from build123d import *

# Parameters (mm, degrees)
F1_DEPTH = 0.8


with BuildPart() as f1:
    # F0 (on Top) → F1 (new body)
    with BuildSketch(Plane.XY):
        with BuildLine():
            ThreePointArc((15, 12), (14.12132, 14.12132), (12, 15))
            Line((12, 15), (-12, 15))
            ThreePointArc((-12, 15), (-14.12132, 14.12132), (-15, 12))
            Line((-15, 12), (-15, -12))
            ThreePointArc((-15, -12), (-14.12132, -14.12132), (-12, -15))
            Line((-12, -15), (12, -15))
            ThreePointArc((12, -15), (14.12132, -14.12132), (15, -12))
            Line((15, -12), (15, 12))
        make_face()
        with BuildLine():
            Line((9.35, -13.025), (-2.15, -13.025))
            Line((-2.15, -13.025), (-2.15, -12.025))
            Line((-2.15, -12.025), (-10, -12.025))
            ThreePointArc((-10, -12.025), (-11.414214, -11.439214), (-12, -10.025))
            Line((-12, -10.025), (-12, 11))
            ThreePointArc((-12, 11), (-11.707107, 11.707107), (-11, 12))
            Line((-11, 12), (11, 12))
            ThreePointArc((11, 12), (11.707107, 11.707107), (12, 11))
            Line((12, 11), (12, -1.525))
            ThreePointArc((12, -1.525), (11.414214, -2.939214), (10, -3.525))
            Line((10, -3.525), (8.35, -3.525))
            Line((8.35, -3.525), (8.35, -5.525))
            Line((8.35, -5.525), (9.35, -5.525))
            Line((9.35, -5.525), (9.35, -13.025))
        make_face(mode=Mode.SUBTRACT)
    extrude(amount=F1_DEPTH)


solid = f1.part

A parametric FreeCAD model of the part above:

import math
import FreeCAD as App
import Part
import Sketcher
Q = App.Units.Quantity

doc = App.newDocument("Part")
body = doc.addObject("PartDesign::Body", "Body")

# Sketch on XY plane
sketch1 = body.newObject("Sketcher::SketchObject", "Sketch")
sketch1.AttachmentSupport = (doc.getObject("XY_Plane"), [""])
sketch1.MapMode = "FlatFace"
sketch1.addGeometry([
    Part.ArcOfCircle(Part.Circle(App.Vector(12, 12, 0), App.Vector(0, 0, 1), 3), math.radians(0), math.radians(90)),  # 0
    Part.LineSegment(App.Vector(12, 15, 0), App.Vector(-12, 15, 0)),  # 1
    Part.ArcOfCircle(Part.Circle(App.Vector(-12, 12, 0), App.Vector(0, 0, 1), 3), math.radians(90), math.radians(180)),  # 2
    Part.LineSegment(App.Vector(-15, 12, 0), App.Vector(-15, -12, 0)),  # 3
    Part.ArcOfCircle(Part.Circle(App.Vector(-12, -12, 0), App.Vector(0, 0, 1), 3), math.radians(-180), math.radians(-90)),  # 4
    Part.LineSegment(App.Vector(-12, -15, 0), App.Vector(12, -15, 0)),  # 5
    Part.ArcOfCircle(Part.Circle(App.Vector(12, -12, 0), App.Vector(0, 0, 1), 3), math.radians(-90), math.radians(0)),  # 6
    Part.LineSegment(App.Vector(15, -12, 0), App.Vector(15, 12, 0)),  # 7
    Part.LineSegment(App.Vector(9.3, -5.5, 0), App.Vector(9.3, -13, 0)),  # 8
    Part.LineSegment(App.Vector(9.3, -13, 0), App.Vector(-2.1, -13, 0)),  # 9
    Part.LineSegment(App.Vector(-2.1, -13, 0), App.Vector(-2.1, -12, 0)),  # 10
    Part.LineSegment(App.Vector(-2.1, -12, 0), App.Vector(-10, -12, 0)),  # 11
    Part.ArcOfCircle(Part.Circle(App.Vector(-10, -10, 0), App.Vector(0, 0, 1), 2), math.radians(180), math.radians(270)),  # 12
    Part.LineSegment(App.Vector(-12, -10, 0), App.Vector(-12, 11, 0)),  # 13
    Part.ArcOfCircle(Part.Circle(App.Vector(-11, 11, 0), App.Vector(0, 0, 1), 1), math.radians(90), math.radians(180)),  # 14
    Part.LineSegment(App.Vector(-11, 12, 0), App.Vector(11, 12, 0)),  # 15
    Part.ArcOfCircle(Part.Circle(App.Vector(11, 11, 0), App.Vector(0, 0, 1), 1), math.radians(0), math.radians(90)),  # 16
    Part.LineSegment(App.Vector(12, 11, 0), App.Vector(12, -1.5, 0)),  # 17
    Part.ArcOfCircle(Part.Circle(App.Vector(10, -1.5, 0), App.Vector(0, 0, 1), 2), math.radians(-90), math.radians(0)),  # 18
    Part.LineSegment(App.Vector(10, -3.5, 0), App.Vector(8.3, -3.5, 0)),  # 19
    Part.LineSegment(App.Vector(8.3, -3.5, 0), App.Vector(8.3, -5.5, 0)),  # 20
    Part.LineSegment(App.Vector(8.3, -5.5, 0), App.Vector(9.3, -5.5, 0)),  # 21
], False)
sketch1.addConstraint([
    Sketcher.Constraint("Tangent", 0, 2, 1, 1),
    Sketcher.Constraint("Tangent", 1, 2, 2, 1),
    Sketcher.Constraint("Tangent", 2, 2, 3, 1),
    Sketcher.Constraint("Tangent", 3, 2, 4, 1),
    Sketcher.Constraint("Tangent", 4, 2, 5, 1),
    Sketcher.Constraint("Tangent", 5, 2, 6, 1),
    Sketcher.Constraint("Tangent", 6, 2, 7, 1),
    Sketcher.Constraint("Tangent", 7, 2, 0, 1),
    Sketcher.Constraint("Coincident", 8, 2, 9, 1),
    Sketcher.Constraint("Coincident", 9, 2, 10, 1),
    Sketcher.Constraint("Coincident", 10, 2, 11, 1),
    Sketcher.Constraint("Tangent", 11, 2, 12, 2),
    Sketcher.Constraint("Tangent", 12, 1, 13, 1),
    Sketcher.Constraint("Tangent", 13, 2, 14, 2),
    Sketcher.Constraint("Tangent", 14, 1, 15, 1),
    Sketcher.Constraint("Tangent", 15, 2, 16, 2),
    Sketcher.Constraint("Tangent", 16, 1, 17, 1),
    Sketcher.Constraint("Tangent", 17, 2, 18, 2),
    Sketcher.Constraint("Tangent", 18, 1, 19, 1),
    Sketcher.Constraint("Coincident", 19, 2, 20, 1),
    Sketcher.Constraint("Coincident", 20, 2, 21, 1),
    Sketcher.Constraint("Coincident", 21, 2, 8, 1),
    Sketcher.Constraint("Horizontal", 1),
    Sketcher.Constraint("Vertical", 3),
    Sketcher.Constraint("Horizontal", 5),
    Sketcher.Constraint("Vertical", 7),
    Sketcher.Constraint("Vertical", 8),
    Sketcher.Constraint("Horizontal", 9),
    Sketcher.Constraint("Vertical", 10),
    Sketcher.Constraint("Horizontal", 11),
    Sketcher.Constraint("Vertical", 13),
    Sketcher.Constraint("Horizontal", 15),
    Sketcher.Constraint("Vertical", 17),
    Sketcher.Constraint("Horizontal", 19),
    Sketcher.Constraint("Vertical", 20),
    Sketcher.Constraint("Horizontal", 21),
    Sketcher.Constraint("Equal", 0, 2),
    Sketcher.Constraint("Equal", 2, 4),
    Sketcher.Constraint("Equal", 4, 6),
    Sketcher.Constraint("Equal", 14, 16),
    Sketcher.Constraint("Equal", 12, 18),
    Sketcher.Constraint("Symmetric", 0, 3, 4, 3, -1, 1),
    Sketcher.Constraint("Horizontal", 7, 2, 14, 1),
    Sketcher.Constraint("Vertical", 4, 2, 12, 1),
    Sketcher.Constraint("Vertical", 5, 2, 16, 1),
    Sketcher.Constraint("Equal", 5, 3),
    Sketcher.Constraint("Equal", 21, 10),
    Sketcher.Constraint("Radius", 0, Q("3.000001 mm")),
    Sketcher.Constraint("Radius", 12, Q("1.999999 mm")),
    Sketcher.Constraint("Radius", 14, Q("0.999999 mm")),
    Sketcher.Constraint("DistanceX", 1, 2, 1, 1, Q("24 mm")),
    Sketcher.Constraint("DistanceX", 21, 1, 21, 2, Q("1 mm")),
    Sketcher.Constraint("DistanceY", 20, 2, 20, 1, Q("2 mm")),
    Sketcher.Constraint("DistanceX", 9, 2, 9, 1, Q("11.5 mm")),
    Sketcher.Constraint("DistanceY", 8, 2, 8, 1, Q("7.5 mm")),
    Sketcher.Constraint("DistanceX", 11, 2, 11, 1, Q("7.85 mm")),
    Sketcher.Constraint("DistanceY", 13, 1, 13, 2, Q("21.025 mm")),
])
pad1 = body.newObject("PartDesign::Pad", "Pad")
pad1.Profile = sketch1
pad1.Length = 0.8

doc.recompute()
